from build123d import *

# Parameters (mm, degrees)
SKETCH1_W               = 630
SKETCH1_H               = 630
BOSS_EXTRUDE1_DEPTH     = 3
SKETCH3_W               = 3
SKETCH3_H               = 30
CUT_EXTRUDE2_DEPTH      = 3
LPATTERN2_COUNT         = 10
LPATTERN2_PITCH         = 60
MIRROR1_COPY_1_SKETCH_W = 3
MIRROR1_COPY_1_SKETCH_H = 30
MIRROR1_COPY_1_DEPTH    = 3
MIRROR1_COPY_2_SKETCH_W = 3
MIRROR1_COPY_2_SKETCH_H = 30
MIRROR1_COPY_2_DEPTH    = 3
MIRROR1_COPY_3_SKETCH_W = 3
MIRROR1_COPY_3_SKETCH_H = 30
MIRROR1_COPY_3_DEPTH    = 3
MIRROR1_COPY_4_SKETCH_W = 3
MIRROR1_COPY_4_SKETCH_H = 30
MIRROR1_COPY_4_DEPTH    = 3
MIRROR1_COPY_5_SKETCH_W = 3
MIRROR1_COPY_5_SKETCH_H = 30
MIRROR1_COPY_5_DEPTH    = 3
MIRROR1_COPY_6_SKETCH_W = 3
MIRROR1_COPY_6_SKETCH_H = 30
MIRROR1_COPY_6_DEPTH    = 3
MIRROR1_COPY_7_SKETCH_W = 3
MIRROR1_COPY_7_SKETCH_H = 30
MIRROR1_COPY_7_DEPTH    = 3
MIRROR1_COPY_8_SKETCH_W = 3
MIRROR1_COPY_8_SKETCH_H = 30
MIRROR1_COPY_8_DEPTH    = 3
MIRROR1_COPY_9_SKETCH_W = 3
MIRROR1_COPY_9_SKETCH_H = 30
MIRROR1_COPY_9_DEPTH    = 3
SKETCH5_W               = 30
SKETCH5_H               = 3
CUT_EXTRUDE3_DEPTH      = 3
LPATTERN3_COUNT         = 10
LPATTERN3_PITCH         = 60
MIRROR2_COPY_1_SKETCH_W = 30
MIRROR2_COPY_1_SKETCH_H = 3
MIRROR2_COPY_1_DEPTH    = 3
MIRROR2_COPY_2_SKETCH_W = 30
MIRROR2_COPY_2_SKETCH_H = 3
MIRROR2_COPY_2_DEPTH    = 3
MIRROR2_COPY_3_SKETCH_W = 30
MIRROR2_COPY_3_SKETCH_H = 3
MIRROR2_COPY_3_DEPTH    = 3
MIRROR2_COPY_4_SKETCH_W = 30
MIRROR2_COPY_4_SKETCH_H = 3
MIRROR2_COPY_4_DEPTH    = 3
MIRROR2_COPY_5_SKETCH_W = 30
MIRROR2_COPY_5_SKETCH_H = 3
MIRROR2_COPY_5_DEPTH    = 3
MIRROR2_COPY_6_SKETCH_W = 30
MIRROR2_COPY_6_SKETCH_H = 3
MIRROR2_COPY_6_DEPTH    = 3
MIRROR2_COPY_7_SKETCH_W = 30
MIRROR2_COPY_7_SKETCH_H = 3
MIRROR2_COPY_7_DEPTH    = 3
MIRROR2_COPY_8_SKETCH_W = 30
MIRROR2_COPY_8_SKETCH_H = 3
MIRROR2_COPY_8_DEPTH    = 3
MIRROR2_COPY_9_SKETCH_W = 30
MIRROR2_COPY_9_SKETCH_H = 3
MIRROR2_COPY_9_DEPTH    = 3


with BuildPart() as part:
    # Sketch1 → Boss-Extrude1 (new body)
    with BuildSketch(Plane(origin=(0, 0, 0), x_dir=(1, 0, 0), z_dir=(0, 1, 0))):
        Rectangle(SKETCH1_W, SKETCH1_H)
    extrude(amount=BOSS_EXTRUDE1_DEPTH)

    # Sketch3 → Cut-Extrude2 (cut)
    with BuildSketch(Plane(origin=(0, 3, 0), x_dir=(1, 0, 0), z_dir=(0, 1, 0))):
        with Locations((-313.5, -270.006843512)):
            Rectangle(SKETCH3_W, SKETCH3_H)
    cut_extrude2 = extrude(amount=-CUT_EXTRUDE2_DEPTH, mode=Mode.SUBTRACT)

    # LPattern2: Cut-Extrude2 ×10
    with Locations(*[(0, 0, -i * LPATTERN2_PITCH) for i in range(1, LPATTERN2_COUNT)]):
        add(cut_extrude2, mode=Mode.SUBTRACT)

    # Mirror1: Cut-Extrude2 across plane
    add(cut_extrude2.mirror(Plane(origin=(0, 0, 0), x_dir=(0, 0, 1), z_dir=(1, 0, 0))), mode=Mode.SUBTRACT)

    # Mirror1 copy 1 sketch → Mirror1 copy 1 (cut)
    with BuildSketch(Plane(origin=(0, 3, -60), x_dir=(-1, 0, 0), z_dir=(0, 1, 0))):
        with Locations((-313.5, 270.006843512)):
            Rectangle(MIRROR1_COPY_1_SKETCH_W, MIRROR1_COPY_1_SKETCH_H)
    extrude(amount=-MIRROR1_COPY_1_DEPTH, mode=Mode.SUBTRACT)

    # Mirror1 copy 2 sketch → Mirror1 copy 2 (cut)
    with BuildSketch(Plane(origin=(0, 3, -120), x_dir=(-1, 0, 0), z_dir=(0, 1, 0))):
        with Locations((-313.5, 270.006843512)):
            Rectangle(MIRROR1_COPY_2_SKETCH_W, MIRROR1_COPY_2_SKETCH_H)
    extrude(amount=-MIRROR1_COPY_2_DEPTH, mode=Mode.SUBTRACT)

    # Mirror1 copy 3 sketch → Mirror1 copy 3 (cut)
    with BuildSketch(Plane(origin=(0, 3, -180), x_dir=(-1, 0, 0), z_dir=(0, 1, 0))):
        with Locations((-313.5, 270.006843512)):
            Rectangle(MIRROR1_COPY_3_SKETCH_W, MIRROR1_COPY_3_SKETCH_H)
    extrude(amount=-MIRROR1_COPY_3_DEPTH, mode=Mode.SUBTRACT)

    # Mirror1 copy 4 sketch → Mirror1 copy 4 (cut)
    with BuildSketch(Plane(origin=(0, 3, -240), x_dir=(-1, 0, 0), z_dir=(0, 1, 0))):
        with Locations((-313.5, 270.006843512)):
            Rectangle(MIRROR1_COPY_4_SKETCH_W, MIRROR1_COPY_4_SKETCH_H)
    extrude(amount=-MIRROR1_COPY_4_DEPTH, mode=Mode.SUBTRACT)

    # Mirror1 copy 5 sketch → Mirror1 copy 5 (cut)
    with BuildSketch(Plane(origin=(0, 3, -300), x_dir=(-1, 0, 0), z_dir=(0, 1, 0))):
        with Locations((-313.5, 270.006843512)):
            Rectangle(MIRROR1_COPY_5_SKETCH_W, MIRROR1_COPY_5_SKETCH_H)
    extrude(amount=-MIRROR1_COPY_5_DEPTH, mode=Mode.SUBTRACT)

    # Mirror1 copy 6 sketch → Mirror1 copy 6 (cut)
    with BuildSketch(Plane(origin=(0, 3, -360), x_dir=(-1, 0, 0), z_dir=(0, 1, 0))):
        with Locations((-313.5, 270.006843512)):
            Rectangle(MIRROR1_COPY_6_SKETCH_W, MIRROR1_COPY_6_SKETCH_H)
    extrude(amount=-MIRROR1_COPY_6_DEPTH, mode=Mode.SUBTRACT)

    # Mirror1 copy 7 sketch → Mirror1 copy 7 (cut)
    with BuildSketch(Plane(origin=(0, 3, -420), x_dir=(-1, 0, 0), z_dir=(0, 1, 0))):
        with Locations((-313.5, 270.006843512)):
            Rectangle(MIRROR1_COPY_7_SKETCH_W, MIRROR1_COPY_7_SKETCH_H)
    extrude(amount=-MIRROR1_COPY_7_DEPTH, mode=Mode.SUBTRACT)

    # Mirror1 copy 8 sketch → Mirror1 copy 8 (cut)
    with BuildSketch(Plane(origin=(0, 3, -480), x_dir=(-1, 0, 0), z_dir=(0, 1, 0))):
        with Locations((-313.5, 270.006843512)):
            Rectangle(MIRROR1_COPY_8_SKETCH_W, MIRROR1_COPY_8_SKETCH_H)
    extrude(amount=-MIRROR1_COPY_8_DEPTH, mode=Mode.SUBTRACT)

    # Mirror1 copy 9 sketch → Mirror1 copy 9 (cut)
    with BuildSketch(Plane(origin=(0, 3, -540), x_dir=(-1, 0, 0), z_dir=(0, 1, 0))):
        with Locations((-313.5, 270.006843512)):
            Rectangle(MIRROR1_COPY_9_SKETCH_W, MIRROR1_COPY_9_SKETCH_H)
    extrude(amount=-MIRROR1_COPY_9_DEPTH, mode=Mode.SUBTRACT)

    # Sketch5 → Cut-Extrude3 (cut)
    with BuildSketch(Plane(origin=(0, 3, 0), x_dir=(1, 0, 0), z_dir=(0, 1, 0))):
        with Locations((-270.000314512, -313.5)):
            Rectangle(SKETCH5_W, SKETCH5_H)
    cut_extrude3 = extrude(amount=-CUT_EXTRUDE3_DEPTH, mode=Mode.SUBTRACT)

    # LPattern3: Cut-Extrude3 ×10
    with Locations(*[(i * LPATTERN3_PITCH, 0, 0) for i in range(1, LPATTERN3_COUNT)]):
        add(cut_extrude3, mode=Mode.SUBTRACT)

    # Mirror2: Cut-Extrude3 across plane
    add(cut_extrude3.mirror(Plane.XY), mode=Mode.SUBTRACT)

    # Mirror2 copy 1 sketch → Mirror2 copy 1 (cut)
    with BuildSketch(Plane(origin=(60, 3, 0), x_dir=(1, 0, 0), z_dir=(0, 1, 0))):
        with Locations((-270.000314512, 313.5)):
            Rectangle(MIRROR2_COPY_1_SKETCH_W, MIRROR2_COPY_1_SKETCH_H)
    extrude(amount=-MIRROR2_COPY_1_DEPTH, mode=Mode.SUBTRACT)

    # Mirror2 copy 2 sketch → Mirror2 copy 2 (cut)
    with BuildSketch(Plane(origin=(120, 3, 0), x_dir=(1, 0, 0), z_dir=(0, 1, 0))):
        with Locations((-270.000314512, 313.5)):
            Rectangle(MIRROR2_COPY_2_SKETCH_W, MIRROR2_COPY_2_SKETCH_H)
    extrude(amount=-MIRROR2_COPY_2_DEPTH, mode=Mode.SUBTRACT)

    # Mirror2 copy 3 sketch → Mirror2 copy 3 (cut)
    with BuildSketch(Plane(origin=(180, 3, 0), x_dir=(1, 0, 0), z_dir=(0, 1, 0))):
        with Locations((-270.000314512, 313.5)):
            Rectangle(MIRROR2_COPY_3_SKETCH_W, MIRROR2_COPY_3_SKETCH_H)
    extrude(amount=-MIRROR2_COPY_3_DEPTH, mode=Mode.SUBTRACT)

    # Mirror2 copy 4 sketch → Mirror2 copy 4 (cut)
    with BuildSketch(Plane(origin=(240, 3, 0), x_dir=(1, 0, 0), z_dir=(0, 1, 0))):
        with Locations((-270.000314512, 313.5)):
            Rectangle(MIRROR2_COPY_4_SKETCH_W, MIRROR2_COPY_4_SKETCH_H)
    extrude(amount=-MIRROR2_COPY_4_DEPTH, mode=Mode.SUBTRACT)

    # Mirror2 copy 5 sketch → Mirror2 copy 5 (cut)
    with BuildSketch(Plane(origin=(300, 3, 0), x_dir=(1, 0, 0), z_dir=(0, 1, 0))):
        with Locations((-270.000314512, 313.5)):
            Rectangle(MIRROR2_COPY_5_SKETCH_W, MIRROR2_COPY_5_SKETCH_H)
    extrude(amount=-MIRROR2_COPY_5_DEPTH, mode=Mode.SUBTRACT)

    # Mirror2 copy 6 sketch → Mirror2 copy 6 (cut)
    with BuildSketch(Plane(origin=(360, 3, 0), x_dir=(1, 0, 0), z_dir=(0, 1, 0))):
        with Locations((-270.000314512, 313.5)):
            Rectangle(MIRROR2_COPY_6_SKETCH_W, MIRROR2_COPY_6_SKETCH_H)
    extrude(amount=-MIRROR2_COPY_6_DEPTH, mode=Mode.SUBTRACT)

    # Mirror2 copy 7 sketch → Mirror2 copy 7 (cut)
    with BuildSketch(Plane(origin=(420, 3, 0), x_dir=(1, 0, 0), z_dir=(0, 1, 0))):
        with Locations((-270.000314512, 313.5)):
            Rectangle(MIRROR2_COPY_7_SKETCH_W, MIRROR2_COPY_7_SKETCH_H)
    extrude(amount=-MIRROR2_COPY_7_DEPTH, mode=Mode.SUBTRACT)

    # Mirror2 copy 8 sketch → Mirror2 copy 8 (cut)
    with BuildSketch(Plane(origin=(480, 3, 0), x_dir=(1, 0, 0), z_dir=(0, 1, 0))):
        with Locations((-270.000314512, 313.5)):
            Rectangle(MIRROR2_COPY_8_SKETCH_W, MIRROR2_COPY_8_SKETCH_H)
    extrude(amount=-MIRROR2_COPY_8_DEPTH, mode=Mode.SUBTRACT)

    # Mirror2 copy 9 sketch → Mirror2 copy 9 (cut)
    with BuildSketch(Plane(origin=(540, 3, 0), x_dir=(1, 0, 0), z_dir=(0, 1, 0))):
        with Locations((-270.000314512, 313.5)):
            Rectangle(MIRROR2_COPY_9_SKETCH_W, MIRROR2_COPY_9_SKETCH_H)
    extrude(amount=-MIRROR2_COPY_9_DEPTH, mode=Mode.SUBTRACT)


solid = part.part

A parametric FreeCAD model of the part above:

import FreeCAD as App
import Part
import Sketcher

V = App.Vector
Q = App.Units.Quantity

doc = App.newDocument("Part")
body = doc.addObject("PartDesign::Body", "Body")

sketch1 = body.newObject("Sketcher::SketchObject", "Sketch")
sketch1.AttachmentSupport = (doc.getObject("XZ_Plane"), [""])
sketch1.MapMode = "FlatFace"
sketch1.addGeometry([
    Part.LineSegment(V(-315, -315, 0), V(-315, 315, 0)),
    Part.LineSegment(V(-315, 315, 0), V(315, 315, 0)),
    Part.LineSegment(V(315, 315, 0), V(315, -315, 0)),
    Part.LineSegment(V(315, -315, 0), V(-315, -315, 0)),
], False)
sketch1.addConstraint([
    Sketcher.Constraint("Coincident", 0, 2, 1, 1),
    Sketcher.Constraint("Coincident", 1, 2, 2, 1),
    Sketcher.Constraint("Coincident", 2, 2, 3, 1),
    Sketcher.Constraint("Coincident", 3, 2, 0, 1),
    Sketcher.Constraint("Vertical", 0),
    Sketcher.Constraint("Horizontal", 1),
    Sketcher.Constraint("Vertical", 2),
    Sketcher.Constraint("Horizontal", 3),
    Sketcher.Constraint("Symmetric", 0, 2, 2, 2, -1, 1),
    Sketcher.Constraint("Equal", 3, 0),
    Sketcher.Constraint("DistanceX", 1, 1, 1, 2, Q("630 mm")),
])
pad1 = body.newObject("PartDesign::Pad", "Pad")
pad1.Profile = sketch1
pad1.Length = 3
pad1.Reversed = True

sketch2 = body.newObject("Sketcher::SketchObject", "Sketch001")
sketch2.AttachmentSupport = (doc.getObject("XZ_Plane"), [""])
sketch2.MapMode = "FlatFace"
sketch2.AttachmentOffset = App.Placement(V(0, 0, -3), App.Rotation())
sketch2.addGeometry([
    Part.LineSegment(V(-315, 255, 0), V(-315, 285, 0)),
    Part.LineSegment(V(-315, 285, 0), V(-312, 285, 0)),
    Part.LineSegment(V(-312, 285, 0), V(-312, 255, 0)),
    Part.LineSegment(V(-312, 255, 0), V(-315, 255, 0)),
], False)
sketch2.addConstraint([
    Sketcher.Constraint("Coincident", 0, 2, 1, 1),
    Sketcher.Constraint("Coincident", 1, 2, 2, 1),
    Sketcher.Constraint("Coincident", 2, 2, 3, 1),
    Sketcher.Constraint("Coincident", 3, 2, 0, 1),
    Sketcher.Constraint("Vertical", 0),
    Sketcher.Constraint("Horizontal", 1),
    Sketcher.Constraint("Vertical", 2),
    Sketcher.Constraint("Horizontal", 3),
    Sketcher.Constraint("DistanceX", 1, 1, 1, 2, Q("3 mm")),
    Sketcher.Constraint("DistanceY", 0, 1, 0, 2, Q("30 mm")),
    Sketcher.Constraint("DistanceX", 0, 2, -1, 1, Q("315 mm")),
    Sketcher.Constraint("DistanceY", -1, 1, 0, 2, Q("285.006844 mm")),
])
pocket1 = body.newObject("PartDesign::Pocket", "Pocket")
pocket1.Profile = sketch2
pocket1.Length = 3
pocket1.Reversed = True
doc.recompute()

linearpattern = body.newObject("PartDesign::LinearPattern", "LinearPattern")
linearpattern.Originals = [pocket1]
linearpattern.Direction = (doc.getObject("Z_Axis"), [""])
linearpattern.Mode = "offset"
linearpattern.Offset = 60
linearpattern.Occurrences = 10
linearpattern.Reversed = True
body.Tip = linearpattern
doc.recompute()

mirrored = body.newObject("PartDesign::Mirrored", "Mirrored")
mirrored.Originals = [pocket1]
mirrored.MirrorPlane = (doc.getObject("YZ_Plane"), [""])
body.Tip = mirrored

sketch3 = body.newObject("Sketcher::SketchObject", "Sketch002")
sketch3.AttachmentSupport = (doc.getObject("XZ_Plane"), [""])
sketch3.MapMode = "FlatFace"
sketch3.AttachmentOffset = App.Placement(V(0, 0, -3), App.Rotation())
sketch3.addGeometry([
    Part.LineSegment(V(315, 225, 0), V(315, 195, 0)),
    Part.LineSegment(V(315, 195, 0), V(312, 195, 0)),
    Part.LineSegment(V(312, 195, 0), V(312, 225, 0)),
    Part.LineSegment(V(312, 225, 0), V(315, 225, 0)),
], False)
sketch3.addConstraint([
    Sketcher.Constraint("Coincident", 0, 2, 1, 1),
    Sketcher.Constraint("Coincident", 1, 2, 2, 1),
    Sketcher.Constraint("Coincident", 2, 2, 3, 1),
    Sketcher.Constraint("Coincident", 3, 2, 0, 1),
    Sketcher.Constraint("Vertical", 0),
    Sketcher.Constraint("Horizontal", 1),
    Sketcher.Constraint("Vertical", 2),
    Sketcher.Constraint("Horizontal", 3),
    Sketcher.Constraint("DistanceX", 1, 2, 1, 1, Q("3 mm")),
    Sketcher.Constraint("DistanceY", 0, 2, 0, 1, Q("30 mm")),
    Sketcher.Constraint("DistanceX", -1, 1, 0, 2, Q("315 mm")),
    Sketcher.Constraint("DistanceY", -1, 1, 0, 2, Q("195.006844 mm")),
])
pocket2 = body.newObject("PartDesign::Pocket", "Pocket001")
pocket2.Profile = sketch3
pocket2.Length = 3
pocket2.Reversed = True

sketch4 = body.newObject("Sketcher::SketchObject", "Sketch003")
sketch4.AttachmentSupport = (doc.getObject("XZ_Plane"), [""])
sketch4.MapMode = "FlatFace"
sketch4.AttachmentOffset = App.Placement(V(0, 0, -3), App.Rotation())
sketch4.addGeometry([
    Part.LineSegment(V(315, 165, 0), V(315, 135, 0)),
    Part.LineSegment(V(315, 135, 0), V(312, 135, 0)),
    Part.LineSegment(V(312, 135, 0), V(312, 165, 0)),
    Part.LineSegment(V(312, 165, 0), V(315, 165, 0)),
], False)
sketch4.addConstraint([
    Sketcher.Constraint("Coincident", 0, 2, 1, 1),
    Sketcher.Constraint("Coincident", 1, 2, 2, 1),
    Sketcher.Constraint("Coincident", 2, 2, 3, 1),
    Sketcher.Constraint("Coincident", 3, 2, 0, 1),
    Sketcher.Constraint("Vertical", 0),
    Sketcher.Constraint("Horizontal", 1),
    Sketcher.Constraint("Vertical", 2),
    Sketcher.Constraint("Horizontal", 3),
    Sketcher.Constraint("DistanceX", 1, 2, 1, 1, Q("3 mm")),
    Sketcher.Constraint("DistanceY", 0, 2, 0, 1, Q("30 mm")),
    Sketcher.Constraint("DistanceX", -1, 1, 0, 2, Q("315 mm")),
    Sketcher.Constraint("DistanceY", -1, 1, 0, 2, Q("135.006844 mm")),
])
pocket3 = body.newObject("PartDesign::Pocket", "Pocket002")
pocket3.Profile = sketch4
pocket3.Length = 3
pocket3.Reversed = True

sketch5 = body.newObject("Sketcher::SketchObject", "Sketch004")
sketch5.AttachmentSupport = (doc.getObject("XZ_Plane"), [""])
sketch5.MapMode = "FlatFace"
sketch5.AttachmentOffset = App.Placement(V(0, 0, -3), App.Rotation())
sketch5.addGeometry([
    Part.LineSegment(V(315, 105, 0), V(315, 75, 0)),
    Part.LineSegment(V(315, 75, 0), V(312, 75, 0)),
    Part.LineSegment(V(312, 75, 0), V(312, 105, 0)),
    Part.LineSegment(V(312, 105, 0), V(315, 105, 0)),
], False)
sketch5.addConstraint([
    Sketcher.Constraint("Coincident", 0, 2, 1, 1),
    Sketcher.Constraint("Coincident", 1, 2, 2, 1),
    Sketcher.Constraint("Coincident", 2, 2, 3, 1),
    Sketcher.Constraint("Coincident", 3, 2, 0, 1),
    Sketcher.Constraint("Vertical", 0),
    Sketcher.Constraint("Horizontal", 1),
    Sketcher.Constraint("Vertical", 2),
    Sketcher.Constraint("Horizontal", 3),
    Sketcher.Constraint("DistanceX", 1, 2, 1, 1, Q("3 mm")),
    Sketcher.Constraint("DistanceY", 0, 2, 0, 1, Q("30 mm")),
    Sketcher.Constraint("DistanceX", -1, 1, 0, 2, Q("315 mm")),
    Sketcher.Constraint("DistanceY", -1, 1, 0, 2, Q("75.006844 mm")),
])
pocket4 = body.newObject("PartDesign::Pocket", "Pocket003")
pocket4.Profile = sketch5
pocket4.Length = 3
pocket4.Reversed = True

sketch6 = body.newObject("Sketcher::SketchObject", "Sketch005")
sketch6.AttachmentSupport = (doc.getObject("XZ_Plane"), [""])
sketch6.MapMode = "FlatFace"
sketch6.AttachmentOffset = App.Placement(V(0, 0, -3), App.Rotation())
sketch6.addGeometry([
    Part.LineSegment(V(315, 45, 0), V(315, 15, 0)),
    Part.LineSegment(V(315, 15, 0), V(312, 15, 0)),
    Part.LineSegment(V(312, 15, 0), V(312, 45, 0)),
    Part.LineSegment(V(312, 45, 0), V(315, 45, 0)),
], False)
sketch6.addConstraint([
    Sketcher.Constraint("Coincident", 0, 2, 1, 1),
    Sketcher.Constraint("Coincident", 1, 2, 2, 1),
    Sketcher.Constraint("Coincident", 2, 2, 3, 1),
    Sketcher.Constraint("Coincident", 3, 2, 0, 1),
    Sketcher.Constraint("Vertical", 0),
    Sketcher.Constraint("Horizontal", 1),
    Sketcher.Constraint("Vertical", 2),
    Sketcher.Constraint("Horizontal", 3),
    Sketcher.Constraint("DistanceX", 1, 2, 1, 1, Q("3 mm")),
    Sketcher.Constraint("DistanceY", 0, 2, 0, 1, Q("30 mm")),
    Sketcher.Constraint("DistanceX", -1, 1, 0, 2, Q("315 mm")),
    Sketcher.Constraint("DistanceY", -1, 1, 0, 2, Q("15.006844 mm")),
])
pocket5 = body.newObject("PartDesign::Pocket", "Pocket004")
pocket5.Profile = sketch6
pocket5.Length = 3
pocket5.Reversed = True

sketch7 = body.newObject("Sketcher::SketchObject", "Sketch006")
sketch7.AttachmentSupport = (doc.getObject("XZ_Plane"), [""])
sketch7.MapMode = "FlatFace"
sketch7.AttachmentOffset = App.Placement(V(0, 0, -3), App.Rotation())
sketch7.addGeometry([
    Part.LineSegment(V(315, -15, 0), V(315, -45, 0)),
    Part.LineSegment(V(315, -45, 0), V(312, -45, 0)),
    Part.LineSegment(V(312, -45, 0), V(312, -15, 0)),
    Part.LineSegment(V(312, -15, 0), V(315, -15, 0)),
], False)
sketch7.addConstraint([
    Sketcher.Constraint("Coincident", 0, 2, 1, 1),
    Sketcher.Constraint("Coincident", 1, 2, 2, 1),
    Sketcher.Constraint("Coincident", 2, 2, 3, 1),
    Sketcher.Constraint("Coincident", 3, 2, 0, 1),
    Sketcher.Constraint("Vertical", 0),
    Sketcher.Constraint("Horizontal", 1),
    Sketcher.Constraint("Vertical", 2),
    Sketcher.Constraint("Horizontal", 3),
    Sketcher.Constraint("DistanceX", 1, 2, 1, 1, Q("3 mm")),
    Sketcher.Constraint("DistanceY", 0, 2, 0, 1, Q("30 mm")),
    Sketcher.Constraint("DistanceX", -1, 1, 0, 2, Q("315 mm")),
    Sketcher.Constraint("DistanceY", 0, 2, -1, 1, Q("44.993156 mm")),
])
pocket6 = body.newObject("PartDesign::Pocket", "Pocket005")
pocket6.Profile = sketch7
pocket6.Length = 3
pocket6.Reversed = True

sketch8 = body.newObject("Sketcher::SketchObject", "Sketch007")
sketch8.AttachmentSupport = (doc.getObject("XZ_Plane"), [""])
sketch8.MapMode = "FlatFace"
sketch8.AttachmentOffset = App.Placement(V(0, 0, -3), App.Rotation())
sketch8.addGeometry([
    Part.LineSegment(V(315, -75, 0), V(315, -105, 0)),
    Part.LineSegment(V(315, -105, 0), V(312, -105, 0)),
    Part.LineSegment(V(312, -105, 0), V(312, -75, 0)),
    Part.LineSegment(V(312, -75, 0), V(315, -75, 0)),
], False)
sketch8.addConstraint([
    Sketcher.Constraint("Coincident", 0, 2, 1, 1),
    Sketcher.Constraint("Coincident", 1, 2, 2, 1),
    Sketcher.Constraint("Coincident", 2, 2, 3, 1),
    Sketcher.Constraint("Coincident", 3, 2, 0, 1),
    Sketcher.Constraint("Vertical", 0),
    Sketcher.Constraint("Horizontal", 1),
    Sketcher.Constraint("Vertical", 2),
    Sketcher.Constraint("Horizontal", 3),
    Sketcher.Constraint("DistanceX", 1, 2, 1, 1, Q("3 mm")),
    Sketcher.Constraint("DistanceY", 0, 2, 0, 1, Q("30 mm")),
    Sketcher.Constraint("DistanceX", -1, 1, 0, 2, Q("315 mm")),
    Sketcher.Constraint("DistanceY", 0, 2, -1, 1, Q("104.993156 mm")),
])
pocket7 = body.newObject("PartDesign::Pocket", "Pocket006")
pocket7.Profile = sketch8
pocket7.Length = 3
pocket7.Reversed = True

sketch9 = body.newObject("Sketcher::SketchObject", "Sketch008")
sketch9.AttachmentSupport = (doc.getObject("XZ_Plane"), [""])
sketch9.MapMode = "FlatFace"
sketch9.AttachmentOffset = App.Placement(V(0, 0, -3), App.Rotation())
sketch9.addGeometry([
    Part.LineSegment(V(315, -135, 0), V(315, -165, 0)),
    Part.LineSegment(V(315, -165, 0), V(312, -165, 0)),
    Part.LineSegment(V(312, -165, 0), V(312, -135, 0)),
    Part.LineSegment(V(312, -135, 0), V(315, -135, 0)),
], False)
sketch9.addConstraint([
    Sketcher.Constraint("Coincident", 0, 2, 1, 1),
    Sketcher.Constraint("Coincident", 1, 2, 2, 1),
    Sketcher.Constraint("Coincident", 2, 2, 3, 1),
    Sketcher.Constraint("Coincident", 3, 2, 0, 1),
    Sketcher.Constraint("Vertical", 0),
    Sketcher.Constraint("Horizontal", 1),
    Sketcher.Constraint("Vertical", 2),
    Sketcher.Constraint("Horizontal", 3),
    Sketcher.Constraint("DistanceX", 1, 2, 1, 1, Q("3 mm")),
    Sketcher.Constraint("DistanceY", 0, 2, 0, 1, Q("30 mm")),
    Sketcher.Constraint("DistanceX", -1, 1, 0, 2, Q("315 mm")),
    Sketcher.Constraint("DistanceY", 0, 2, -1, 1, Q("164.993156 mm")),
])
pocket8 = body.newObject("PartDesign::Pocket", "Pocket007")
pocket8.Profile = sketch9
pocket8.Length = 3
pocket8.Reversed = True

sketch10 = body.newObject("Sketcher::SketchObject", "Sketch009")
sketch10.AttachmentSupport = (doc.getObject("XZ_Plane"), [""])
sketch10.MapMode = "FlatFace"
sketch10.AttachmentOffset = App.Placement(V(0, 0, -3), App.Rotation())
sketch10.addGeometry([
    Part.LineSegment(V(315, -195, 0), V(315, -225, 0)),
    Part.LineSegment(V(315, -225, 0), V(312, -225, 0)),
    Part.LineSegment(V(312, -225, 0), V(312, -195, 0)),
    Part.LineSegment(V(312, -195, 0), V(315, -195, 0)),
], False)
sketch10.addConstraint([
    Sketcher.Constraint("Coincident", 0, 2, 1, 1),
    Sketcher.Constraint("Coincident", 1, 2, 2, 1),
    Sketcher.Constraint("Coincident", 2, 2, 3, 1),
    Sketcher.Constraint("Coincident", 3, 2, 0, 1),
    Sketcher.Constraint("Vertical", 0),
    Sketcher.Constraint("Horizontal", 1),
    Sketcher.Constraint("Vertical", 2),
    Sketcher.Constraint("Horizontal", 3),
    Sketcher.Constraint("DistanceX", 1, 2, 1, 1, Q("3 mm")),
    Sketcher.Constraint("DistanceY", 0, 2, 0, 1, Q("30 mm")),
    Sketcher.Constraint("DistanceX", -1, 1, 0, 2, Q("315 mm")),
    Sketcher.Constraint("DistanceY", 0, 2, -1, 1, Q("224.993156 mm")),
])
pocket9 = body.newObject("PartDesign::Pocket", "Pocket008")
pocket9.Profile = sketch10
pocket9.Length = 3
pocket9.Reversed = True

sketch11 = body.newObject("Sketcher::SketchObject", "Sketch010")
sketch11.AttachmentSupport = (doc.getObject("XZ_Plane"), [""])
sketch11.MapMode = "FlatFace"
sketch11.AttachmentOffset = App.Placement(V(0, 0, -3), App.Rotation())
sketch11.addGeometry([
    Part.LineSegment(V(315, -255, 0), V(315, -285, 0)),
    Part.LineSegment(V(315, -285, 0), V(312, -285, 0)),
    Part.LineSegment(V(312, -285, 0), V(312, -255, 0)),
    Part.LineSegment(V(312, -255, 0), V(315, -255, 0)),
], False)
sketch11.addConstraint([
    Sketcher.Constraint("Coincident", 0, 2, 1, 1),
    Sketcher.Constraint("Coincident", 1, 2, 2, 1),
    Sketcher.Constraint("Coincident", 2, 2, 3, 1),
    Sketcher.Constraint("Coincident", 3, 2, 0, 1),
    Sketcher.Constraint("Vertical", 0),
    Sketcher.Constraint("Horizontal", 1),
    Sketcher.Constraint("Vertical", 2),
    Sketcher.Constraint("Horizontal", 3),
    Sketcher.Constraint("DistanceX", 1, 2, 1, 1, Q("3 mm")),
    Sketcher.Constraint("DistanceY", 0, 2, 0, 1, Q("30 mm")),
    Sketcher.Constraint("DistanceX", -1, 1, 0, 2, Q("315 mm")),
    Sketcher.Constraint("DistanceY", 0, 2, -1, 1, Q("284.993156 mm")),
])
pocket10 = body.newObject("PartDesign::Pocket", "Pocket009")
pocket10.Profile = sketch11
pocket10.Length = 3
pocket10.Reversed = True

sketch12 = body.newObject("Sketcher::SketchObject", "Sketch011")
sketch12.AttachmentSupport = (doc.getObject("XZ_Plane"), [""])
sketch12.MapMode = "FlatFace"
sketch12.AttachmentOffset = App.Placement(V(0, 0, -3), App.Rotation())
sketch12.addGeometry([
    Part.LineSegment(V(-285.000315, 312, 0), V(-285.000315, 315, 0)),
    Part.LineSegment(V(-285.000315, 315, 0), V(-255.000315, 315, 0)),
    Part.LineSegment(V(-255.000315, 315, 0), V(-255.000315, 312, 0)),
    Part.LineSegment(V(-255.000315, 312, 0), V(-285.000315, 312, 0)),
], False)
sketch12.addConstraint([
    Sketcher.Constraint("Coincident", 0, 2, 1, 1),
    Sketcher.Constraint("Coincident", 1, 2, 2, 1),
    Sketcher.Constraint("Coincident", 2, 2, 3, 1),
    Sketcher.Constraint("Coincident", 3, 2, 0, 1),
    Sketcher.Constraint("Vertical", 0),
    Sketcher.Constraint("Horizontal", 1),
    Sketcher.Constraint("Vertical", 2),
    Sketcher.Constraint("Horizontal", 3),
    Sketcher.Constraint("DistanceX", 1, 1, 1, 2, Q("30 mm")),
    Sketcher.Constraint("DistanceY", 0, 1, 0, 2, Q("3 mm")),
    Sketcher.Constraint("DistanceY", -1, 1, 0, 2, Q("315 mm")),
    Sketcher.Constraint("DistanceX", 0, 2, -1, 1, Q("285.000315 mm")),
])
pocket11 = body.newObject("PartDesign::Pocket", "Pocket010")
pocket11.Profile = sketch12
pocket11.Length = 3
pocket11.Reversed = True
doc.recompute()

linearpattern2 = body.newObject("PartDesign::LinearPattern", "LinearPattern001")
linearpattern2.Originals = [pocket11]
linearpattern2.Direction = (doc.getObject("X_Axis"), [""])
linearpattern2.Mode = "offset"
linearpattern2.Offset = 60
linearpattern2.Occurrences = 10
body.Tip = linearpattern2
doc.recompute()

mirrored2 = body.newObject("PartDesign::Mirrored", "Mirrored001")
mirrored2.Originals = [pocket11]
mirrored2.MirrorPlane = (doc.getObject("XY_Plane"), [""])
body.Tip = mirrored2

sketch13 = body.newObject("Sketcher::SketchObject", "Sketch012")
sketch13.AttachmentSupport = (doc.getObject("XZ_Plane"), [""])
sketch13.MapMode = "FlatFace"
sketch13.AttachmentOffset = App.Placement(V(0, 0, -3), App.Rotation())
sketch13.addGeometry([
    Part.LineSegment(V(-225.000315, -315, 0), V(-225.000315, -312, 0)),
    Part.LineSegment(V(-225.000315, -312, 0), V(-195.000315, -312, 0)),
    Part.LineSegment(V(-195.000315, -312, 0), V(-195.000315, -315, 0)),
    Part.LineSegment(V(-195.000315, -315, 0), V(-225.000315, -315, 0)),
], False)
sketch13.addConstraint([
    Sketcher.Constraint("Coincident", 0, 2, 1, 1),
    Sketcher.Constraint("Coincident", 1, 2, 2, 1),
    Sketcher.Constraint("Coincident", 2, 2, 3, 1),
    Sketcher.Constraint("Coincident", 3, 2, 0, 1),
    Sketcher.Constraint("Vertical", 0),
    Sketcher.Constraint("Horizontal", 1),
    Sketcher.Constraint("Vertical", 2),
    Sketcher.Constraint("Horizontal", 3),
    Sketcher.Constraint("DistanceX", 1, 1, 1, 2, Q("30 mm")),
    Sketcher.Constraint("DistanceY", 0, 1, 0, 2, Q("3 mm")),
    Sketcher.Constraint("DistanceY", 0, 2, -1, 1, Q("312 mm")),
    Sketcher.Constraint("DistanceX", 0, 2, -1, 1, Q("225.000315 mm")),
])
pocket12 = body.newObject("PartDesign::Pocket", "Pocket011")
pocket12.Profile = sketch13
pocket12.Length = 3
pocket12.Reversed = True

sketch14 = body.newObject("Sketcher::SketchObject", "Sketch013")
sketch14.AttachmentSupport = (doc.getObject("XZ_Plane"), [""])
sketch14.MapMode = "FlatFace"
sketch14.AttachmentOffset = App.Placement(V(0, 0, -3), App.Rotation())
sketch14.addGeometry([
    Part.LineSegment(V(-165.000315, -315, 0), V(-165.000315, -312, 0)),
    Part.LineSegment(V(-165.000315, -312, 0), V(-135.000315, -312, 0)),
    Part.LineSegment(V(-135.000315, -312, 0), V(-135.000315, -315, 0)),
    Part.LineSegment(V(-135.000315, -315, 0), V(-165.000315, -315, 0)),
], False)
sketch14.addConstraint([
    Sketcher.Constraint("Coincident", 0, 2, 1, 1),
    Sketcher.Constraint("Coincident", 1, 2, 2, 1),
    Sketcher.Constraint("Coincident", 2, 2, 3, 1),
    Sketcher.Constraint("Coincident", 3, 2, 0, 1),
    Sketcher.Constraint("Vertical", 0),
    Sketcher.Constraint("Horizontal", 1),
    Sketcher.Constraint("Vertical", 2),
    Sketcher.Constraint("Horizontal", 3),
    Sketcher.Constraint("DistanceX", 1, 1, 1, 2, Q("30 mm")),
    Sketcher.Constraint("DistanceY", 0, 1, 0, 2, Q("3 mm")),
    Sketcher.Constraint("DistanceY", 0, 2, -1, 1, Q("312 mm")),
    Sketcher.Constraint("DistanceX", 0, 2, -1, 1, Q("165.000315 mm")),
])
pocket13 = body.newObject("PartDesign::Pocket", "Pocket012")
pocket13.Profile = sketch14
pocket13.Length = 3
pocket13.Reversed = True

sketch15 = body.newObject("Sketcher::SketchObject", "Sketch014")
sketch15.AttachmentSupport = (doc.getObject("XZ_Plane"), [""])
sketch15.MapMode = "FlatFace"
sketch15.AttachmentOffset = App.Placement(V(0, 0, -3), App.Rotation())
sketch15.addGeometry([
    Part.LineSegment(V(-105, -315, 0), V(-105, -312, 0)),
    Part.LineSegment(V(-105, -312, 0), V(-75, -312, 0)),
    Part.LineSegment(V(-75, -312, 0), V(-75, -315, 0)),
    Part.LineSegment(V(-75, -315, 0), V(-105, -315, 0)),
], False)
sketch15.addConstraint([
    Sketcher.Constraint("Coincident", 0, 2, 1, 1),
    Sketcher.Constraint("Coincident", 1, 2, 2, 1),
    Sketcher.Constraint("Coincident", 2, 2, 3, 1),
    Sketcher.Constraint("Coincident", 3, 2, 0, 1),
    Sketcher.Constraint("Vertical", 0),
    Sketcher.Constraint("Horizontal", 1),
    Sketcher.Constraint("Vertical", 2),
    Sketcher.Constraint("Horizontal", 3),
    Sketcher.Constraint("DistanceX", 1, 1, 1, 2, Q("30 mm")),
    Sketcher.Constraint("DistanceY", 0, 1, 0, 2, Q("3 mm")),
    Sketcher.Constraint("DistanceY", 0, 2, -1, 1, Q("312 mm")),
    Sketcher.Constraint("DistanceX", 0, 2, -1, 1, Q("105.000315 mm")),
])
pocket14 = body.newObject("PartDesign::Pocket", "Pocket013")
pocket14.Profile = sketch15
pocket14.Length = 3
pocket14.Reversed = True

sketch16 = body.newObject("Sketcher::SketchObject", "Sketch015")
sketch16.AttachmentSupport = (doc.getObject("XZ_Plane"), [""])
sketch16.MapMode = "FlatFace"
sketch16.AttachmentOffset = App.Placement(V(0, 0, -3), App.Rotation())
sketch16.addGeometry([
    Part.LineSegment(V(-45, -315, 0), V(-45, -312, 0)),
    Part.LineSegment(V(-45, -312, 0), V(-15, -312, 0)),
    Part.LineSegment(V(-15, -312, 0), V(-15, -315, 0)),
    Part.LineSegment(V(-15, -315, 0), V(-45, -315, 0)),
], False)
sketch16.addConstraint([
    Sketcher.Constraint("Coincident", 0, 2, 1, 1),
    Sketcher.Constraint("Coincident", 1, 2, 2, 1),
    Sketcher.Constraint("Coincident", 2, 2, 3, 1),
    Sketcher.Constraint("Coincident", 3, 2, 0, 1),
    Sketcher.Constraint("Vertical", 0),
    Sketcher.Constraint("Horizontal", 1),
    Sketcher.Constraint("Vertical", 2),
    Sketcher.Constraint("Horizontal", 3),
    Sketcher.Constraint("DistanceX", 1, 1, 1, 2, Q("30 mm")),
    Sketcher.Constraint("DistanceY", 0, 1, 0, 2, Q("3 mm")),
    Sketcher.Constraint("DistanceY", 0, 2, -1, 1, Q("312 mm")),
    Sketcher.Constraint("DistanceX", 0, 2, -1, 1, Q("45.000315 mm")),
])
pocket15 = body.newObject("PartDesign::Pocket", "Pocket014")
pocket15.Profile = sketch16
pocket15.Length = 3
pocket15.Reversed = True

sketch17 = body.newObject("Sketcher::SketchObject", "Sketch016")
sketch17.AttachmentSupport = (doc.getObject("XZ_Plane"), [""])
sketch17.MapMode = "FlatFace"
sketch17.AttachmentOffset = App.Placement(V(0, 0, -3), App.Rotation())
sketch17.addGeometry([
    Part.LineSegment(V(15, -315, 0), V(15, -312, 0)),
    Part.LineSegment(V(15, -312, 0), V(45, -312, 0)),
    Part.LineSegment(V(45, -312, 0), V(45, -315, 0)),
    Part.LineSegment(V(45, -315, 0), V(15, -315, 0)),
], False)
sketch17.addConstraint([
    Sketcher.Constraint("Coincident", 0, 2, 1, 1),
    Sketcher.Constraint("Coincident", 1, 2, 2, 1),
    Sketcher.Constraint("Coincident", 2, 2, 3, 1),
    Sketcher.Constraint("Coincident", 3, 2, 0, 1),
    Sketcher.Constraint("Vertical", 0),
    Sketcher.Constraint("Horizontal", 1),
    Sketcher.Constraint("Vertical", 2),
    Sketcher.Constraint("Horizontal", 3),
    Sketcher.Constraint("DistanceX", 1, 1, 1, 2, Q("30 mm")),
    Sketcher.Constraint("DistanceY", 0, 1, 0, 2, Q("3 mm")),
    Sketcher.Constraint("DistanceY", 0, 2, -1, 1, Q("312 mm")),
    Sketcher.Constraint("DistanceX", -1, 1, 0, 2, Q("14.999685 mm")),
])
pocket16 = body.newObject("PartDesign::Pocket", "Pocket015")
pocket16.Profile = sketch17
pocket16.Length = 3
pocket16.Reversed = True

sketch18 = body.newObject("Sketcher::SketchObject", "Sketch017")
sketch18.AttachmentSupport = (doc.getObject("XZ_Plane"), [""])
sketch18.MapMode = "FlatFace"
sketch18.AttachmentOffset = App.Placement(V(0, 0, -3), App.Rotation())
sketch18.addGeometry([
    Part.LineSegment(V(75, -315, 0), V(75, -312, 0)),
    Part.LineSegment(V(75, -312, 0), V(105, -312, 0)),
    Part.LineSegment(V(105, -312, 0), V(105, -315, 0)),
    Part.LineSegment(V(105, -315, 0), V(75, -315, 0)),
], False)
sketch18.addConstraint([
    Sketcher.Constraint("Coincident", 0, 2, 1, 1),
    Sketcher.Constraint("Coincident", 1, 2, 2, 1),
    Sketcher.Constraint("Coincident", 2, 2, 3, 1),
    Sketcher.Constraint("Coincident", 3, 2, 0, 1),
    Sketcher.Constraint("Vertical", 0),
    Sketcher.Constraint("Horizontal", 1),
    Sketcher.Constraint("Vertical", 2),
    Sketcher.Constraint("Horizontal", 3),
    Sketcher.Constraint("DistanceX", 1, 1, 1, 2, Q("30 mm")),
    Sketcher.Constraint("DistanceY", 0, 1, 0, 2, Q("3 mm")),
    Sketcher.Constraint("DistanceY", 0, 2, -1, 1, Q("312 mm")),
    Sketcher.Constraint("DistanceX", -1, 1, 0, 2, Q("74.999685 mm")),
])
pocket17 = body.newObject("PartDesign::Pocket", "Pocket016")
pocket17.Profile = sketch18
pocket17.Length = 3
pocket17.Reversed = True

sketch19 = body.newObject("Sketcher::SketchObject", "Sketch018")
sketch19.AttachmentSupport = (doc.getObject("XZ_Plane"), [""])
sketch19.MapMode = "FlatFace"
sketch19.AttachmentOffset = App.Placement(V(0, 0, -3), App.Rotation())
sketch19.addGeometry([
    Part.LineSegment(V(134.999685, -315, 0), V(134.999685, -312, 0)),
    Part.LineSegment(V(134.999685, -312, 0), V(164.999685, -312, 0)),
    Part.LineSegment(V(164.999685, -312, 0), V(164.999685, -315, 0)),
    Part.LineSegment(V(164.999685, -315, 0), V(134.999685, -315, 0)),
], False)
sketch19.addConstraint([
    Sketcher.Constraint("Coincident", 0, 2, 1, 1),
    Sketcher.Constraint("Coincident", 1, 2, 2, 1),
    Sketcher.Constraint("Coincident", 2, 2, 3, 1),
    Sketcher.Constraint("Coincident", 3, 2, 0, 1),
    Sketcher.Constraint("Vertical", 0),
    Sketcher.Constraint("Horizontal", 1),
    Sketcher.Constraint("Vertical", 2),
    Sketcher.Constraint("Horizontal", 3),
    Sketcher.Constraint("DistanceX", 1, 1, 1, 2, Q("30 mm")),
    Sketcher.Constraint("DistanceY", 0, 1, 0, 2, Q("3 mm")),
    Sketcher.Constraint("DistanceY", 0, 2, -1, 1, Q("312 mm")),
    Sketcher.Constraint("DistanceX", -1, 1, 0, 2, Q("134.999685 mm")),
])
pocket18 = body.newObject("PartDesign::Pocket", "Pocket017")
pocket18.Profile = sketch19
pocket18.Length = 3
pocket18.Reversed = True

sketch20 = body.newObject("Sketcher::SketchObject", "Sketch019")
sketch20.AttachmentSupport = (doc.getObject("XZ_Plane"), [""])
sketch20.MapMode = "FlatFace"
sketch20.AttachmentOffset = App.Placement(V(0, 0, -3), App.Rotation())
sketch20.addGeometry([
    Part.LineSegment(V(194.999685, -315, 0), V(194.999685, -312, 0)),
    Part.LineSegment(V(194.999685, -312, 0), V(224.999685, -312, 0)),
    Part.LineSegment(V(224.999685, -312, 0), V(224.999685, -315, 0)),
    Part.LineSegment(V(224.999685, -315, 0), V(194.999685, -315, 0)),
], False)
sketch20.addConstraint([
    Sketcher.Constraint("Coincident", 0, 2, 1, 1),
    Sketcher.Constraint("Coincident", 1, 2, 2, 1),
    Sketcher.Constraint("Coincident", 2, 2, 3, 1),
    Sketcher.Constraint("Coincident", 3, 2, 0, 1),
    Sketcher.Constraint("Vertical", 0),
    Sketcher.Constraint("Horizontal", 1),
    Sketcher.Constraint("Vertical", 2),
    Sketcher.Constraint("Horizontal", 3),
    Sketcher.Constraint("DistanceX", 1, 1, 1, 2, Q("30 mm")),
    Sketcher.Constraint("DistanceY", 0, 1, 0, 2, Q("3 mm")),
    Sketcher.Constraint("DistanceY", 0, 2, -1, 1, Q("312 mm")),
    Sketcher.Constraint("DistanceX", -1, 1, 0, 2, Q("194.999685 mm")),
])
pocket19 = body.newObject("PartDesign::Pocket", "Pocket018")
pocket19.Profile = sketch20
pocket19.Length = 3
pocket19.Reversed = True

sketch21 = body.newObject("Sketcher::SketchObject", "Sketch020")
sketch21.AttachmentSupport = (doc.getObject("XZ_Plane"), [""])
sketch21.MapMode = "FlatFace"
sketch21.AttachmentOffset = App.Placement(V(0, 0, -3), App.Rotation())
sketch21.addGeometry([
    Part.LineSegment(V(254.999685, -315, 0), V(254.999685, -312, 0)),
    Part.LineSegment(V(254.999685, -312, 0), V(284.999685, -312, 0)),
    Part.LineSegment(V(284.999685, -312, 0), V(284.999685, -315, 0)),
    Part.LineSegment(V(284.999685, -315, 0), V(254.999685, -315, 0)),
], False)
sketch21.addConstraint([
    Sketcher.Constraint("Coincident", 0, 2, 1, 1),
    Sketcher.Constraint("Coincident", 1, 2, 2, 1),
    Sketcher.Constraint("Coincident", 2, 2, 3, 1),
    Sketcher.Constraint("Coincident", 3, 2, 0, 1),
    Sketcher.Constraint("Vertical", 0),
    Sketcher.Constraint("Horizontal", 1),
    Sketcher.Constraint("Vertical", 2),
    Sketcher.Constraint("Horizontal", 3),
    Sketcher.Constraint("DistanceX", 1, 1, 1, 2, Q("30 mm")),
    Sketcher.Constraint("DistanceY", 0, 1, 0, 2, Q("3 mm")),
    Sketcher.Constraint("DistanceY", 0, 2, -1, 1, Q("312 mm")),
    Sketcher.Constraint("DistanceX", -1, 1, 0, 2, Q("254.999685 mm")),
])
pocket20 = body.newObject("PartDesign::Pocket", "Pocket019")
pocket20.Profile = sketch21
pocket20.Length = 3
pocket20.Reversed = True

doc.recompute()
